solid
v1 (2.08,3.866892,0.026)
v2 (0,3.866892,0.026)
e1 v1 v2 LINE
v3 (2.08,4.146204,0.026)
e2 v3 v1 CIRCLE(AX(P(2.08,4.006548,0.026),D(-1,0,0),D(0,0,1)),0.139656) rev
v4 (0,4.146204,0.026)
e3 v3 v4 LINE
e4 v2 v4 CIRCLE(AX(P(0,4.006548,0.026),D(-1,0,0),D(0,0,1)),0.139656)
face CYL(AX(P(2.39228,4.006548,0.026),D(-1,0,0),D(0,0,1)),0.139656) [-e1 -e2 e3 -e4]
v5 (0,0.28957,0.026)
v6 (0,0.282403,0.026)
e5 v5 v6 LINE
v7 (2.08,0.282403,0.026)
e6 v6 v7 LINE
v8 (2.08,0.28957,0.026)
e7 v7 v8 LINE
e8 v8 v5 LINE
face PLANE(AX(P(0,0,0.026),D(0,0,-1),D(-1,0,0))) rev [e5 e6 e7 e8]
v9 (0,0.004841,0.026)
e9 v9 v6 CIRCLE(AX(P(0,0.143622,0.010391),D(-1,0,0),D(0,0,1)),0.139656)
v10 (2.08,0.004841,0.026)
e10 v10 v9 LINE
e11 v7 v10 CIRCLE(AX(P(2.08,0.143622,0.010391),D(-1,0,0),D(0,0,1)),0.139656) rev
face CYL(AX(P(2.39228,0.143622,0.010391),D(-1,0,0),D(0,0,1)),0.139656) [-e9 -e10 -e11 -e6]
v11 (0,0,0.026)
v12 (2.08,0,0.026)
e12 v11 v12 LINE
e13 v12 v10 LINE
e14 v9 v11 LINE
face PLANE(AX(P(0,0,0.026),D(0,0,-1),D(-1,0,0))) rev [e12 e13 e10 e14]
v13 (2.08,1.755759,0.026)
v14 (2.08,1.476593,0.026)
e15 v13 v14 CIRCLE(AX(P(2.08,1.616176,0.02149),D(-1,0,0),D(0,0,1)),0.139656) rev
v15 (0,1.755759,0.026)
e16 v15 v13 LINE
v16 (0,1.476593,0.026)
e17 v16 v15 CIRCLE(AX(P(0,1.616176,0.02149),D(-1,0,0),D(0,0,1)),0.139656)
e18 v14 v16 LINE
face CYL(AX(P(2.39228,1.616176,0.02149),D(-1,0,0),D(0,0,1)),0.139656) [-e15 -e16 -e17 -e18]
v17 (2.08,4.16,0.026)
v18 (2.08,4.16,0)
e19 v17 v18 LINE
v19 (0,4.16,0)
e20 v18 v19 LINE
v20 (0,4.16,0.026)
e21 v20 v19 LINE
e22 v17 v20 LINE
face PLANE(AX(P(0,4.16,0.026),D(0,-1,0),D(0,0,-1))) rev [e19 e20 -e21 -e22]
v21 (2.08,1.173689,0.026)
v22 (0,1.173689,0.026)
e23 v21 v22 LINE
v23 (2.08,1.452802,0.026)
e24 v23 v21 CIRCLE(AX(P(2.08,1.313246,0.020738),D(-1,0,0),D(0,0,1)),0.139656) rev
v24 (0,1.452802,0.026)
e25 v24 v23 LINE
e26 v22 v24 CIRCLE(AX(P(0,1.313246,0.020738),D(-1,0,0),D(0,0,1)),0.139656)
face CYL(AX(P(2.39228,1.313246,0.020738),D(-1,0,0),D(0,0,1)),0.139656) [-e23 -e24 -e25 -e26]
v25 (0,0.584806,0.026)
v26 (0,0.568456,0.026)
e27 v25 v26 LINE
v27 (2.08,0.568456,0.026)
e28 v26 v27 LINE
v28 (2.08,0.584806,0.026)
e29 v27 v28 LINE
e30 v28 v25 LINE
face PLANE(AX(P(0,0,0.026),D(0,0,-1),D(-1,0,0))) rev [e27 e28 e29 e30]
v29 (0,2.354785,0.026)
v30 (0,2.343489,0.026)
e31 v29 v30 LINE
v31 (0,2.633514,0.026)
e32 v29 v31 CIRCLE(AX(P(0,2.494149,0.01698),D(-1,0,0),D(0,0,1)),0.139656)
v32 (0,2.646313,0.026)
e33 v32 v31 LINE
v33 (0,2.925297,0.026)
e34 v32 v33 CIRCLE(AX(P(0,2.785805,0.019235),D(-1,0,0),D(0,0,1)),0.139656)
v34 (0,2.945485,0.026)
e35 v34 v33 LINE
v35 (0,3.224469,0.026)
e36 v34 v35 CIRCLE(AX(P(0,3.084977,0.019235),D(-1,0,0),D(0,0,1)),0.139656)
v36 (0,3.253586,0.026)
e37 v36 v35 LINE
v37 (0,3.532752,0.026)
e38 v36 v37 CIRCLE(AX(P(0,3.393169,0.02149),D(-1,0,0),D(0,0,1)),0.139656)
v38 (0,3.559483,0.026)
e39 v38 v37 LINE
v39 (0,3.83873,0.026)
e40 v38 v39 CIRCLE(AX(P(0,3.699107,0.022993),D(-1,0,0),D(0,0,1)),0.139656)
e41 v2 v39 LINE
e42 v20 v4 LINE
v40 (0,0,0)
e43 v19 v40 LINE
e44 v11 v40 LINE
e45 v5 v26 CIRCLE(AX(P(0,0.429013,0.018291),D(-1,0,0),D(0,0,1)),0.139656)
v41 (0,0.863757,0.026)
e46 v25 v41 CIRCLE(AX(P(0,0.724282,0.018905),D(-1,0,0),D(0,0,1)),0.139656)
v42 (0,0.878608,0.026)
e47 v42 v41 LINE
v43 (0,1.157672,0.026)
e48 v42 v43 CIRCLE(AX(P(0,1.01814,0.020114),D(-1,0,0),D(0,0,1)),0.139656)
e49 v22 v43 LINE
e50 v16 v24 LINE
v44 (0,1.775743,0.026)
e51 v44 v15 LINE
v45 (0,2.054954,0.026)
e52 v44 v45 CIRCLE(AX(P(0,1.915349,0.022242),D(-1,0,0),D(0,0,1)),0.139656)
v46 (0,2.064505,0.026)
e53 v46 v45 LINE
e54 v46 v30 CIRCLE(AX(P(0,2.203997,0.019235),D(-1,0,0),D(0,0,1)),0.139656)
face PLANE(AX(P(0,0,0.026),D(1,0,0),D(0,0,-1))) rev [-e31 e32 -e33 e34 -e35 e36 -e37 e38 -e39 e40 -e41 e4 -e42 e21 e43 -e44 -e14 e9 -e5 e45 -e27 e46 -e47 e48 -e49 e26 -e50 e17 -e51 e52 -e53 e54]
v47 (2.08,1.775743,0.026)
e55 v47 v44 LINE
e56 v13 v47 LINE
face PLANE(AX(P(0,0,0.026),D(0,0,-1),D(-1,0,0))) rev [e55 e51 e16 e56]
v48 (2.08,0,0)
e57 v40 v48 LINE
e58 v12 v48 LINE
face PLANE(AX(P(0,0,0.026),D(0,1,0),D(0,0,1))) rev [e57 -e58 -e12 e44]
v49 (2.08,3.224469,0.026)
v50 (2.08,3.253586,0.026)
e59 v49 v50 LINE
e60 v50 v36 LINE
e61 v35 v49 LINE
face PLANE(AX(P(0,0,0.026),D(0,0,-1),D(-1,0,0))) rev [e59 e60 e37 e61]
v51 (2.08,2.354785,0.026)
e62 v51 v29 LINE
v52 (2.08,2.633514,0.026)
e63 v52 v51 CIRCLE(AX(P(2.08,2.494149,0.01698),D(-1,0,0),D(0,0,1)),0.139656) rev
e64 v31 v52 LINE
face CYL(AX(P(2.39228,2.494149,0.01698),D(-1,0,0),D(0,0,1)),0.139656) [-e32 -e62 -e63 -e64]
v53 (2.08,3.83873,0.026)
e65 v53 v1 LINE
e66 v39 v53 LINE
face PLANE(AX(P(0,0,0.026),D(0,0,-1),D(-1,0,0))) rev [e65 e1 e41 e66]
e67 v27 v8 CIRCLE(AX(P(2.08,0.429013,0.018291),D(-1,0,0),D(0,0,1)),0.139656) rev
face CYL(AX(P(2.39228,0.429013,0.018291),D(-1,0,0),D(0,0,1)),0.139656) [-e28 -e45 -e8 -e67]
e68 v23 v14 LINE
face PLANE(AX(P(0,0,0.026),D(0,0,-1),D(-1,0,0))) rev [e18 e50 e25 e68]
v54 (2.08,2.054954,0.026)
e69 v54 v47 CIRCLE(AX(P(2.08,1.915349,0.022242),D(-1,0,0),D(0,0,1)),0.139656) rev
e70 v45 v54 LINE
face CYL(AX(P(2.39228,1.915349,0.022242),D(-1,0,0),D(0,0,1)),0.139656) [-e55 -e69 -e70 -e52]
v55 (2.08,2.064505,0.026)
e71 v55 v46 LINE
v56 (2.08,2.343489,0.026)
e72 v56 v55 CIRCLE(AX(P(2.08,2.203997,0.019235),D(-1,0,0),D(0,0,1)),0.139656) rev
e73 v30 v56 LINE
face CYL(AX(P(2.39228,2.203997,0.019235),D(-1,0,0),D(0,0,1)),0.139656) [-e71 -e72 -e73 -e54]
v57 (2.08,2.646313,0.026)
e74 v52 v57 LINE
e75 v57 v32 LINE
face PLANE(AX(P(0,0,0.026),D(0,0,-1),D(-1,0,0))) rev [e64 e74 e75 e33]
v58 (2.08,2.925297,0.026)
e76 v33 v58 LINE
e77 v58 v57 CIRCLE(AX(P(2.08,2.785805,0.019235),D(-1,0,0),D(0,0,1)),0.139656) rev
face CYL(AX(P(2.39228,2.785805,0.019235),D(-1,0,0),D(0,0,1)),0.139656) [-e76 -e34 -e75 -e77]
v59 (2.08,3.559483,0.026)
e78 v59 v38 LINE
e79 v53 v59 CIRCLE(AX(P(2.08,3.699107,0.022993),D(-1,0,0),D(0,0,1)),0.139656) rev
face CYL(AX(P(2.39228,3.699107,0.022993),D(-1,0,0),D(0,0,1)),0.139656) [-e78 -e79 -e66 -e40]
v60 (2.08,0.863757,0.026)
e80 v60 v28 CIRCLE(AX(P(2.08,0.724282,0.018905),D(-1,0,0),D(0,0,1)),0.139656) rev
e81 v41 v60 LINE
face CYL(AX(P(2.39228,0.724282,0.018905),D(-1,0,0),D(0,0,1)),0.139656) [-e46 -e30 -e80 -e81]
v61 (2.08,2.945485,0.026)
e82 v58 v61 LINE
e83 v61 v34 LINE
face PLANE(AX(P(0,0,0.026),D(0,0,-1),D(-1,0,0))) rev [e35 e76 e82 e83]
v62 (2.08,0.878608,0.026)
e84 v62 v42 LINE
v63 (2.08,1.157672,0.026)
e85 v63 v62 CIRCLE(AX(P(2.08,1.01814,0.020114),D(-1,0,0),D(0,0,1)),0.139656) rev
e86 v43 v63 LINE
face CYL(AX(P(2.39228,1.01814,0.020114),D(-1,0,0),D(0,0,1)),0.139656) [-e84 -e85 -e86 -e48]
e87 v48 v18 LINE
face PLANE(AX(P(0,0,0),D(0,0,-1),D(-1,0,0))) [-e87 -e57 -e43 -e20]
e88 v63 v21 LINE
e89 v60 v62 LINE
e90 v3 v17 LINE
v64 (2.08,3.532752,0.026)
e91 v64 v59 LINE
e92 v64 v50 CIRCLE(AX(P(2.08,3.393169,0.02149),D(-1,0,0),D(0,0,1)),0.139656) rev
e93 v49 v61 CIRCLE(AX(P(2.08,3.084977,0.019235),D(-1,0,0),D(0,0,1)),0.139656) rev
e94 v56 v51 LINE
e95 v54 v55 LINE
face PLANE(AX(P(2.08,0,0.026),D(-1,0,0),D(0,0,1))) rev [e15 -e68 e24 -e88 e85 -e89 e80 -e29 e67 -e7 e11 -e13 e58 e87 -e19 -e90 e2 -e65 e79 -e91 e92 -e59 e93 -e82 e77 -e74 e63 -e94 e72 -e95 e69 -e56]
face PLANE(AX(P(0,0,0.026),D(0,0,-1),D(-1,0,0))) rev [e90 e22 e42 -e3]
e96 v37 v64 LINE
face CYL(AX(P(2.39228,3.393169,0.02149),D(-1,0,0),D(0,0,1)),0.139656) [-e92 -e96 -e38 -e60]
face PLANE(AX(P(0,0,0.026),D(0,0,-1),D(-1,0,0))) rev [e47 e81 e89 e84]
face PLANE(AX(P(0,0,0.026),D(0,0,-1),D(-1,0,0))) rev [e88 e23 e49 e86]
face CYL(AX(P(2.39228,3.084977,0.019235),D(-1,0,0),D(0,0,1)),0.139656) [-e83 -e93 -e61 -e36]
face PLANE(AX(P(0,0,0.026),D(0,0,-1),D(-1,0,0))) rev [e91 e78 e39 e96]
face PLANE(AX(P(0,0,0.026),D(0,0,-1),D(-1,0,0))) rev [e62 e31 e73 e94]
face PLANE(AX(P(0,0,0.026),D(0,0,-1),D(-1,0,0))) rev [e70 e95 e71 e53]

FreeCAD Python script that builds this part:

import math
import FreeCAD as App
import Part
import Sketcher

V = App.Vector
Q = App.Units.Quantity

doc = App.newDocument("Part")
params = doc.addObject("Spreadsheet::Sheet", "Params")
for row, (alias, value) in enumerate([
    ("sketch1_width", "2.08 mm"),
    ("sketch1_height", "4.16 mm"),
    ("pad1_length", "0.026 mm"),
    ("pad2_length", "2.08 mm"),
], start=1):
    params.set(f"A{row}", alias)
    params.set(f"B{row}", "=" + value)
    params.setAlias(f"B{row}", alias)

body = doc.addObject("PartDesign::Body", "Body")

# Sketch on XY plane
sketch1 = body.newObject("Sketcher::SketchObject", "Sketch")
sketch1.AttachmentSupport = (doc.getObject("XY_Plane"), [""])
sketch1.MapMode = "FlatFace"
sketch1.addGeometry(Part.LineSegment(V(0, 4.2, 0), V(0, 0, 0)), False)
sketch1.addGeometry(Part.LineSegment(V(0, 0, 0), V(2.1, 0, 0)), False)
sketch1.addGeometry(Part.LineSegment(V(2.1, 0, 0), V(2.1, 4.2, 0)), False)
sketch1.addGeometry(Part.LineSegment(V(2.1, 4.2, 0), V(0, 4.2, 0)), False)
sketch1.addConstraint(Sketcher.Constraint("Coincident", 0, 2, 1, 1))
sketch1.addConstraint(Sketcher.Constraint("Coincident", 1, 2, 2, 1))
sketch1.addConstraint(Sketcher.Constraint("Coincident", 2, 2, 3, 1))
sketch1.addConstraint(Sketcher.Constraint("Coincident", 3, 2, 0, 1))
sketch1.addConstraint(Sketcher.Constraint("Vertical", 0))
sketch1.addConstraint(Sketcher.Constraint("Horizontal", 1))
sketch1.addConstraint(Sketcher.Constraint("Vertical", 2))
sketch1.addConstraint(Sketcher.Constraint("Horizontal", 3))
sketch1.addConstraint(Sketcher.Constraint("Coincident", 0, 2, -1, 1))
sketch1.addConstraint(Sketcher.Constraint("DistanceX", 1, 1, 1, 2, Q("2.08 mm")))
sketch1.addConstraint(Sketcher.Constraint("DistanceY", 0, 2, 0, 1, Q("4.16 mm")))
sketch1.setExpression("Constraints[9]", "Params.sketch1_width")
sketch1.setExpression("Constraints[10]", "Params.sketch1_height")
pad1 = body.newObject("PartDesign::Pad", "Pad")
pad1.Profile = sketch1
pad1.setExpression("Length", "Params.pad1_length")

# Sketch on YZ plane
sketch2 = body.newObject("Sketcher::SketchObject", "Sketch001")
sketch2.AttachmentSupport = (doc.getObject("YZ_Plane"), [""])
sketch2.MapMode = "FlatFace"
sketch2.addGeometry(Part.LineSegment(V(4.15, 0.03, 0), V(3.87, 0.03, 0)), False)
sketch2.addGeometry(Part.ArcOfCircle(Part.Circle(V(4.01, 0.03, 0), V(0, 0, 1), 0.14), math.radians(0), math.radians(180)), False)
sketch2.addGeometry(Part.LineSegment(V(3.84, 0.02, 0), V(3.56, 0.02, 0)), False)
sketch2.addGeometry(Part.ArcOfCircle(Part.Circle(V(3.7, 0.02, 0), V(0, 0, 1), 0.14), math.radians(0), math.radians(180)), False)
sketch2.addGeometry(Part.LineSegment(V(3.53, 0.02, 0), V(3.25, 0.02, 0)), False)
sketch2.addGeometry(Part.ArcOfCircle(Part.Circle(V(3.39, 0.02, 0), V(0, 0, 1), 0.14), math.radians(0), math.radians(180)), False)
sketch2.addGeometry(Part.LineSegment(V(3.22, 0.02, 0), V(2.95, 0.02, 0)), False)
sketch2.addGeometry(Part.ArcOfCircle(Part.Circle(V(3.08, 0.02, 0), V(0, 0, 1), 0.14), math.radians(0), math.radians(180)), False)
sketch2.addGeometry(Part.LineSegment(V(2.93, 0.02, 0), V(2.65, 0.02, 0)), False)
sketch2.addGeometry(Part.ArcOfCircle(Part.Circle(V(2.79, 0.02, 0), V(0, 0, 1), 0.14), math.radians(0), math.radians(180)), False)
sketch2.addGeometry(Part.LineSegment(V(2.63, 0.02, 0), V(2.35, 0.02, 0)), False)
sketch2.addGeometry(Part.ArcOfCircle(Part.Circle(V(2.49, 0.02, 0), V(0, 0, 1), 0.14), math.radians(0), math.radians(180)), False)
sketch2.addGeometry(Part.LineSegment(V(2.34, 0.02, 0), V(2.06, 0.02, 0)), False)
sketch2.addGeometry(Part.ArcOfCircle(Part.Circle(V(2.2, 0.02, 0), V(0, 0, 1), 0.14), math.radians(0), math.radians(180)), False)
sketch2.addGeometry(Part.LineSegment(V(2.06, 0.02, 0), V(1.78, 0.02, 0)), False)
sketch2.addGeometry(Part.ArcOfCircle(Part.Circle(V(1.92, 0.02, 0), V(0, 0, 1), 0.14), math.radians(0), math.radians(180)), False)
sketch2.addGeometry(Part.LineSegment(V(1.76, 0.02, 0), V(1.48, 0.02, 0)), False)
sketch2.addGeometry(Part.ArcOfCircle(Part.Circle(V(1.62, 0.02, 0), V(0, 0, 1), 0.14), math.radians(0), math.radians(180)), False)
sketch2.addGeometry(Part.LineSegment(V(1.45, 0.02, 0), V(1.17, 0.02, 0)), False)
sketch2.addGeometry(Part.ArcOfCircle(Part.Circle(V(1.31, 0.02, 0), V(0, 0, 1), 0.14), math.radians(0), math.radians(180)), False)
sketch2.addGeometry(Part.LineSegment(V(1.16, 0.02, 0), V(0.88, 0.02, 0)), False)
sketch2.addGeometry(Part.ArcOfCircle(Part.Circle(V(1.02, 0.02, 0), V(0, 0, 1), 0.14), math.radians(0), math.radians(180)), False)
sketch2.addGeometry(Part.LineSegment(V(0.86, 0.02, 0), V(0.58, 0.02, 0)), False)
sketch2.addGeometry(Part.ArcOfCircle(Part.Circle(V(0.72, 0.02, 0), V(0, 0, 1), 0.14), math.radians(0), math.radians(180)), False)
sketch2.addGeometry(Part.LineSegment(V(0.57, 0.02, 0), V(0.29, 0.02, 0)), False)
sketch2.addGeometry(Part.ArcOfCircle(Part.Circle(V(0.43, 0.02, 0), V(0, 0, 1), 0.14), math.radians(0), math.radians(180)), False)
sketch2.addGeometry(Part.LineSegment(V(0.28, 0.01, 0), V(0, 0.01, 0)), False)
sketch2.addGeometry(Part.ArcOfCircle(Part.Circle(V(0.14, 0.01, 0), V(0, 0, 1), 0.14), math.radians(0), math.radians(180)), False)
sketch2.addConstraint(Sketcher.Constraint("Coincident", 0, 1, 1, 1))
sketch2.addConstraint(Sketcher.Constraint("Coincident", 1, 2, 0, 2))
sketch2.addConstraint(Sketcher.Constraint("Coincident", 2, 1, 3, 1))
sketch2.addConstraint(Sketcher.Constraint("Coincident", 3, 2, 2, 2))
sketch2.addConstraint(Sketcher.Constraint("Coincident", 4, 1, 5, 1))
sketch2.addConstraint(Sketcher.Constraint("Coincident", 5, 2, 4, 2))
sketch2.addConstraint(Sketcher.Constraint("Coincident", 6, 1, 7, 1))
sketch2.addConstraint(Sketcher.Constraint("Coincident", 7, 2, 6, 2))
sketch2.addConstraint(Sketcher.Constraint("Coincident", 8, 1, 9, 1))
sketch2.addConstraint(Sketcher.Constraint("Coincident", 9, 2, 8, 2))
sketch2.addConstraint(Sketcher.Constraint("Coincident", 10, 1, 11, 1))
sketch2.addConstraint(Sketcher.Constraint("Coincident", 11, 2, 10, 2))
sketch2.addConstraint(Sketcher.Constraint("Coincident", 12, 1, 13, 1))
sketch2.addConstraint(Sketcher.Constraint("Coincident", 13, 2, 12, 2))
sketch2.addConstraint(Sketcher.Constraint("Coincident", 14, 1, 15, 1))
sketch2.addConstraint(Sketcher.Constraint("Coincident", 15, 2, 14, 2))
sketch2.addConstraint(Sketcher.Constraint("Coincident", 16, 1, 17, 1))
sketch2.addConstraint(Sketcher.Constraint("Coincident", 17, 2, 16, 2))
sketch2.addConstraint(Sketcher.Constraint("Coincident", 18, 1, 19, 1))
sketch2.addConstraint(Sketcher.Constraint("Coincident", 19, 2, 18, 2))
sketch2.addConstraint(Sketcher.Constraint("Coincident", 20, 1, 21, 1))
sketch2.addConstraint(Sketcher.Constraint("Coincident", 21, 2, 20, 2))
sketch2.addConstraint(Sketcher.Constraint("Coincident", 22, 1, 23, 1))
sketch2.addConstraint(Sketcher.Constraint("Coincident", 23, 2, 22, 2))
sketch2.addConstraint(Sketcher.Constraint("Coincident", 24, 1, 25, 1))
sketch2.addConstraint(Sketcher.Constraint("Coincident", 25, 2, 24, 2))
sketch2.addConstraint(Sketcher.Constraint("Coincident", 26, 1, 27, 1))
sketch2.addConstraint(Sketcher.Constraint("Coincident", 27, 2, 26, 2))
sketch2.addConstraint(Sketcher.Constraint("Horizontal", 0))
sketch2.addConstraint(Sketcher.Constraint("Horizontal", 2))
sketch2.addConstraint(Sketcher.Constraint("Horizontal", 4))
sketch2.addConstraint(Sketcher.Constraint("Horizontal", 6))
sketch2.addConstraint(Sketcher.Constraint("Horizontal", 8))
sketch2.addConstraint(Sketcher.Constraint("Horizontal", 10))
sketch2.addConstraint(Sketcher.Constraint("Horizontal", 12))
sketch2.addConstraint(Sketcher.Constraint("Horizontal", 14))
sketch2.addConstraint(Sketcher.Constraint("Horizontal", 16))
sketch2.addConstraint(Sketcher.Constraint("Horizontal", 18))
sketch2.addConstraint(Sketcher.Constraint("Horizontal", 20))
sketch2.addConstraint(Sketcher.Constraint("Horizontal", 22))
sketch2.addConstraint(Sketcher.Constraint("Horizontal", 24))
sketch2.addConstraint(Sketcher.Constraint("Horizontal", 26))
sketch2.addConstraint(Sketcher.Constraint("Equal", 1, 3))
sketch2.addConstraint(Sketcher.Constraint("Equal", 3, 5))
sketch2.addConstraint(Sketcher.Constraint("Equal", 5, 7))
sketch2.addConstraint(Sketcher.Constraint("Equal", 7, 9))
sketch2.addConstraint(Sketcher.Constraint("Equal", 9, 11))
sketch2.addConstraint(Sketcher.Constraint("Equal", 11, 13))
sketch2.addConstraint(Sketcher.Constraint("Equal", 13, 15))
sketch2.addConstraint(Sketcher.Constraint("Equal", 15, 17))
sketch2.addConstraint(Sketcher.Constraint("Equal", 17, 19))
sketch2.addConstraint(Sketcher.Constraint("Equal", 19, 21))
sketch2.addConstraint(Sketcher.Constraint("Equal", 21, 23))
sketch2.addConstraint(Sketcher.Constraint("Equal", 23, 25))
sketch2.addConstraint(Sketcher.Constraint("Equal", 25, 27))
sketch2.addConstraint(Sketcher.Constraint("Horizontal", 7, 3, 9, 3))
sketch2.addConstraint(Sketcher.Constraint("Horizontal", 9, 3, 13, 3))
sketch2.addConstraint(Sketcher.Constraint("Horizontal", 5, 3, 17, 3))
sketch2.addConstraint(Sketcher.Constraint("Horizontal", 1, 3, 0, 1))
sketch2.addConstraint(Sketcher.Constraint("Horizontal", 3, 3, 2, 1))
sketch2.addConstraint(Sketcher.Constraint("Horizontal", 17, 3, 4, 1))
sketch2.addConstraint(Sketcher.Constraint("Horizontal", 13, 3, 6, 1))
sketch2.addConstraint(Sketcher.Constraint("Horizontal", 7, 2, 8, 1))
sketch2.addConstraint(Sketcher.Constraint("Horizontal", 11, 3, 10, 1))
sketch2.addConstraint(Sketcher.Constraint("Horizontal", 9, 2, 12, 1))
sketch2.addConstraint(Sketcher.Constraint("Horizontal", 15, 3, 14, 1))
sketch2.addConstraint(Sketcher.Constraint("Horizontal", 5, 2, 16, 1))
sketch2.addConstraint(Sketcher.Constraint("Horizontal", 19, 3, 18, 1))
sketch2.addConstraint(Sketcher.Constraint("Horizontal", 21, 3, 20, 1))
sketch2.addConstraint(Sketcher.Constraint("Horizontal", 23, 3, 22, 1))
sketch2.addConstraint(Sketcher.Constraint("Horizontal", 25, 3, 24, 1))
sketch2.addConstraint(Sketcher.Constraint("Horizontal", 27, 3, 26, 1))
sketch2.addConstraint(Sketcher.Constraint("DistanceY", -1, 1, 1, 3, Q("0.026 mm")))
sketch2.addConstraint(Sketcher.Constraint("Radius", 1, Q("0.139656 mm")))
sketch2.addConstraint(Sketcher.Constraint("DistanceX", 11, 3, 9, 2, Q("0.151999 mm")))
sketch2.addConstraint(Sketcher.Constraint("DistanceX", -1, 1, 18, 1, Q("1.452902 mm")))
sketch2.addConstraint(Sketcher.Constraint("DistanceX", 11, 3, 1, 3, Q("1.512398 mm")))
sketch2.addConstraint(Sketcher.Constraint("DistanceX", 15, 3, 11, 3, Q("0.578801 mm")))
sketch2.addConstraint(Sketcher.Constraint("DistanceX", 17, 3, 7, 3, Q("1.4688 mm")))
sketch2.addConstraint(Sketcher.Constraint("DistanceY", 25, 3, 17, 3, Q("0.003199 mm")))
sketch2.addConstraint(Sketcher.Constraint("DistanceY", 27, 3, 25, 3, Q("0.0079 mm")))
sketch2.addConstraint(Sketcher.Constraint("DistanceX", -1, 1, 5, 3, Q("3.393169 mm")))
sketch2.addConstraint(Sketcher.Constraint("DistanceY", -1, 1, 5, 3, Q("0.02149 mm")))
sketch2.addConstraint(Sketcher.Constraint("DistanceX", -1, 1, 11, 3, Q("2.494149 mm")))
sketch2.addConstraint(Sketcher.Constraint("DistanceY", -1, 1, 11, 3, Q("0.01698 mm")))
sketch2.addConstraint(Sketcher.Constraint("DistanceY", -1, 1, 15, 3, Q("0.022242 mm")))
sketch2.addConstraint(Sketcher.Constraint("DistanceY", -1, 1, 19, 3, Q("0.020738 mm")))
sketch2.addConstraint(Sketcher.Constraint("DistanceX", -1, 1, 21, 3, Q("1.01814 mm")))
sketch2.addConstraint(Sketcher.Constraint("DistanceX", -1, 1, 23, 3, Q("0.724282 mm")))
sketch2.addConstraint(Sketcher.Constraint("DistanceX", -1, 1, 3, 2, Q("3.559451 mm")))
sketch2.addConstraint(Sketcher.Constraint("DistanceX", -1, 1, 7, 2, Q("2.945321 mm")))
sketch2.addConstraint(Sketcher.Constraint("DistanceX", -1, 1, 13, 2, Q("2.064341 mm")))
sketch2.addConstraint(Sketcher.Constraint("DistanceX", -1, 1, 24, 1, Q("0.568669 mm")))
sketch2.addConstraint(Sketcher.Constraint("DistanceX", -1, 1, 26, 1, Q("0.283278 mm")))
sketch2.addConstraint(Sketcher.Constraint("DistanceY", 7, 3, 3, 3, Q("0.003758 mm")))
sketch2.addConstraint(Sketcher.Constraint("DistanceY", 13, 3, 21, 3, Q("0.000879 mm")))
sketch2.addConstraint(Sketcher.Constraint("DistanceY", 23, 3, 21, 3, Q("0.001209 mm")))
sketch2.addConstraint(Sketcher.Constraint("DistanceY", -1, 1, 3, 3, Q("0.022993 mm")))
pad2 = body.newObject("PartDesign::Pad", "Pad001")
pad2.Profile = sketch2
pad2.setExpression("Length", "Params.pad2_length")

doc.recompute()
